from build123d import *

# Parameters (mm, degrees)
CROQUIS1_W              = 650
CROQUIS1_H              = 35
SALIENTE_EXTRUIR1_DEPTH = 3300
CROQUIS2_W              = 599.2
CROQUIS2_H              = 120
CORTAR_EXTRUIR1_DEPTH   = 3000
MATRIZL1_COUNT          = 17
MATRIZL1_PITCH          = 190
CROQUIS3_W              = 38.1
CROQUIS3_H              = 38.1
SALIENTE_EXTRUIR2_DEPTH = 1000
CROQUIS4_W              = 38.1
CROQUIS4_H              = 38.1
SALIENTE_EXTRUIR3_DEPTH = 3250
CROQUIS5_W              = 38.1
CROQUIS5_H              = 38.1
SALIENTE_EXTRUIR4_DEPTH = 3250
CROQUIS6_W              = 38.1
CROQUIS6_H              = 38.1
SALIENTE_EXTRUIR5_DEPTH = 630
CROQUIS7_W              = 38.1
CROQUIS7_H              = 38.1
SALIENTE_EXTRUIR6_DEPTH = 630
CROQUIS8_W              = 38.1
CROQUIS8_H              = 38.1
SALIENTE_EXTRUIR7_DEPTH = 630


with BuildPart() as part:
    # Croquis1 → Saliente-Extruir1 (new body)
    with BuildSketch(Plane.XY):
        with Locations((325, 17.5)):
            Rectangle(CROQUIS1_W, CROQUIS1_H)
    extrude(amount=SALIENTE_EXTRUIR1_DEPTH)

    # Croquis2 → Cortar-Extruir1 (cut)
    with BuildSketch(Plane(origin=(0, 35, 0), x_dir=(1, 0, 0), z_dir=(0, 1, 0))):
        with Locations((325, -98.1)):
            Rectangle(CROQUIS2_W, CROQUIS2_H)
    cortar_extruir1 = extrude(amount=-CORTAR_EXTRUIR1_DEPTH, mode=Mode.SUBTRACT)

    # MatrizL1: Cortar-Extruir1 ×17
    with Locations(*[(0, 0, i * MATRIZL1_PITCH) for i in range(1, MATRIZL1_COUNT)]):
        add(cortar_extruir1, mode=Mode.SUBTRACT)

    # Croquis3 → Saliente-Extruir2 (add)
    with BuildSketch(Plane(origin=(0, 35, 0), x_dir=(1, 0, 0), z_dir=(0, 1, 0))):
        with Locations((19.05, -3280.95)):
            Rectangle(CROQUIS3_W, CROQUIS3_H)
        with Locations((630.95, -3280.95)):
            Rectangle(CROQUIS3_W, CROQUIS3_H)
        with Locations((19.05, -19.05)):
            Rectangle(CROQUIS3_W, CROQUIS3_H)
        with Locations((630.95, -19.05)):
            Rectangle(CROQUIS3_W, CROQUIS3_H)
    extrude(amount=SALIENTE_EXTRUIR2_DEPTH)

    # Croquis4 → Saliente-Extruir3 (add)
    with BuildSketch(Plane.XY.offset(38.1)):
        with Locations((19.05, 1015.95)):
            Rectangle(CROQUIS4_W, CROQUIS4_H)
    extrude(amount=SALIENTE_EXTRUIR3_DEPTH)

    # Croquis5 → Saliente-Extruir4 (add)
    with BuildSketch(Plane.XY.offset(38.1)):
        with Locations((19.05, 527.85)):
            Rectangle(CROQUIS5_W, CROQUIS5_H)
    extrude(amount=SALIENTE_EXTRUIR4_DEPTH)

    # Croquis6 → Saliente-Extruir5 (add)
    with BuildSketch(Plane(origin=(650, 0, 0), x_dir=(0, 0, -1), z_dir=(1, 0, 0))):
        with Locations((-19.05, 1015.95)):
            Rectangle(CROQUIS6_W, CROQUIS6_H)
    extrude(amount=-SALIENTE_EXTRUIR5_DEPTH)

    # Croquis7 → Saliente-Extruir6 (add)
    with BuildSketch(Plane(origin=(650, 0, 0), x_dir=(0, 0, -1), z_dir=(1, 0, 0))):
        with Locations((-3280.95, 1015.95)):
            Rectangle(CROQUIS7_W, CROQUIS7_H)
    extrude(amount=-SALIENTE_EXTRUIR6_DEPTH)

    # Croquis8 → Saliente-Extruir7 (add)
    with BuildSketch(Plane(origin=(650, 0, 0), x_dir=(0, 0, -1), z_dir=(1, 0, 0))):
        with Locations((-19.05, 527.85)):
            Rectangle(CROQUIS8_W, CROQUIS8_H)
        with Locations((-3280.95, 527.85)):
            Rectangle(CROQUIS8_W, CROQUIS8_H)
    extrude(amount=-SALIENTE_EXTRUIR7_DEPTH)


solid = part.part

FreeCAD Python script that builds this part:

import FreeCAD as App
import Part
import Sketcher

V = App.Vector
Q = App.Units.Quantity


def add_polygon(sketch, points):
    """Adds a closed chain of lines whose ends are joined by coincident constraints."""
    first, n = sketch.GeometryCount, len(points)
    for a, b in zip(points, points[1:] + points[:1]):
        sketch.addGeometry(Part.LineSegment(App.Vector(*a, 0), App.Vector(*b, 0)), False)
    for i in range(n):
        sketch.addConstraint(Sketcher.Constraint("Coincident", first + i, 2, first + (i + 1) % n, 1))

doc = App.newDocument("Part")
body = doc.addObject("PartDesign::Body", "Body")

# Sketch on XY plane
sketch1 = body.newObject("Sketcher::SketchObject", "Sketch")
sketch1.AttachmentSupport = (doc.getObject("XY_Plane"), [""])
sketch1.MapMode = "FlatFace"
add_polygon(sketch1, [(0, 35), (0, 0), (650, 0), (650, 35)])  # lines 0-3
sketch1.addConstraint(Sketcher.Constraint("Vertical", 0))
sketch1.addConstraint(Sketcher.Constraint("Horizontal", 1))
sketch1.addConstraint(Sketcher.Constraint("Vertical", 2))
sketch1.addConstraint(Sketcher.Constraint("Horizontal", 3))
sketch1.addConstraint(Sketcher.Constraint("Coincident", 0, 2, -1, 1))
sketch1.addConstraint(Sketcher.Constraint("DistanceX", 1, 1, 1, 2, Q("650 mm")))
sketch1.addConstraint(Sketcher.Constraint("DistanceY", 0, 2, 0, 1, Q("35 mm")))
pad1 = body.newObject("PartDesign::Pad", "Pad")
pad1.Profile = sketch1
pad1.Length = 3300

# Sketch on XZ plane
sketch2 = body.newObject("Sketcher::SketchObject", "Sketch001")
sketch2.AttachmentSupport = (doc.getObject("XZ_Plane"), [""])
sketch2.MapMode = "FlatFace"
sketch2.AttachmentOffset = App.Placement(V(0, 0, -35), App.Rotation())
add_polygon(sketch2, [(25, 38), (25, 158), (625, 158), (625, 38)])  # lines 0-3
sketch2.addConstraint(Sketcher.Constraint("Vertical", 0))
sketch2.addConstraint(Sketcher.Constraint("Horizontal", 1))
sketch2.addConstraint(Sketcher.Constraint("Vertical", 2))
sketch2.addConstraint(Sketcher.Constraint("Horizontal", 3))
sketch2.addConstraint(Sketcher.Constraint("DistanceY", 0, 1, 0, 2, Q("120 mm")))
sketch2.addConstraint(Sketcher.Constraint("DistanceX", 1, 1, 1, 2, Q("599.2 mm")))
sketch2.addConstraint(Sketcher.Constraint("DistanceX", -1, 1, 0, 2, Q("25.4 mm")))
sketch2.addConstraint(Sketcher.Constraint("DistanceY", -1, 1, 0, 2, Q("158.1 mm")))
pocket1 = body.newObject("PartDesign::Pocket", "Pocket")
pocket1.Profile = sketch2
pocket1.Length = 3000
pocket1.Reversed = True
doc.recompute()

linearpattern = body.newObject("PartDesign::LinearPattern", "LinearPattern")
linearpattern.Originals = [pocket1]
linearpattern.Direction = (doc.getObject("Z_Axis"), [""])
linearpattern.Mode = "offset"
linearpattern.Offset = 190
linearpattern.Occurrences = 17
body.Tip = linearpattern

# Sketch on XZ plane
sketch3 = body.newObject("Sketcher::SketchObject", "Sketch002")
sketch3.AttachmentSupport = (doc.getObject("XZ_Plane"), [""])
sketch3.MapMode = "FlatFace"
sketch3.AttachmentOffset = App.Placement(V(0, 0, -35), App.Rotation())
add_polygon(sketch3, [(0, 3262), (0, 3300), (38, 3300), (38, 3262)])  # lines 0-3
add_polygon(sketch3, [(612, 3262), (612, 3300), (650, 3300), (650, 3262)])  # lines 4-7
add_polygon(sketch3, [(0, 0), (0, 38), (38, 38), (38, 0)])  # lines 8-11
add_polygon(sketch3, [(612, 0), (612, 38), (650, 38), (650, 0)])  # lines 12-15
sketch3.addConstraint(Sketcher.Constraint("Vertical", 0))
sketch3.addConstraint(Sketcher.Constraint("Horizontal", 1))
sketch3.addConstraint(Sketcher.Constraint("Vertical", 2))
sketch3.addConstraint(Sketcher.Constraint("Horizontal", 3))
sketch3.addConstraint(Sketcher.Constraint("Vertical", 4))
sketch3.addConstraint(Sketcher.Constraint("Horizontal", 5))
sketch3.addConstraint(Sketcher.Constraint("Vertical", 6))
sketch3.addConstraint(Sketcher.Constraint("Horizontal", 7))
sketch3.addConstraint(Sketcher.Constraint("Vertical", 8))
sketch3.addConstraint(Sketcher.Constraint("Horizontal", 9))
sketch3.addConstraint(Sketcher.Constraint("Vertical", 10))
sketch3.addConstraint(Sketcher.Constraint("Horizontal", 11))
sketch3.addConstraint(Sketcher.Constraint("Vertical", 12))
sketch3.addConstraint(Sketcher.Constraint("Horizontal", 13))
sketch3.addConstraint(Sketcher.Constraint("Vertical", 14))
sketch3.addConstraint(Sketcher.Constraint("Horizontal", 15))
sketch3.addConstraint(Sketcher.Constraint("Coincident", 11, 2, -1, 1))
sketch3.addConstraint(Sketcher.Constraint("PointOnObject", 0, 2, -2))
sketch3.addConstraint(Sketcher.Constraint("PointOnObject", 14, 2, -1))
sketch3.addConstraint(Sketcher.Constraint("Horizontal", 1, 2, 4, 2))
sketch3.addConstraint(Sketcher.Constraint("Horizontal", 3, 2, 6, 2))
sketch3.addConstraint(Sketcher.Constraint("Horizontal", 9, 2, 12, 2))
sketch3.addConstraint(Sketcher.Constraint("Vertical", 2, 2, 9, 2))
sketch3.addConstraint(Sketcher.Constraint("Vertical", 7, 2, 12, 2))
sketch3.addConstraint(Sketcher.Constraint("Vertical", 6, 2, 13, 2))
sketch3.addConstraint(Sketcher.Constraint("Equal", 3, 5))
sketch3.addConstraint(Sketcher.Constraint("Equal", 15, 0))
sketch3.addConstraint(Sketcher.Constraint("Equal", 6, 8))
sketch3.addConstraint(Sketcher.Constraint("DistanceX", 1, 1, 1, 2, Q("38.1 mm")))
sketch3.addConstraint(Sketcher.Constraint("DistanceY", -1, 1, 0, 2, Q("3300 mm")))
sketch3.addConstraint(Sketcher.Constraint("DistanceX", -1, 1, 5, 2, Q("650 mm")))
pad2 = body.newObject("PartDesign::Pad", "Pad001")
pad2.Profile = sketch3
pad2.Length = 1000
pad2.Reversed = True

# Sketch on XY plane
sketch4 = body.newObject("Sketcher::SketchObject", "Sketch003")
sketch4.AttachmentSupport = (doc.getObject("XY_Plane"), [""])
sketch4.MapMode = "FlatFace"
sketch4.AttachmentOffset = App.Placement(V(0, 0, 38.1), App.Rotation())
add_polygon(sketch4, [(0, 1035), (0, 997), (38, 997), (38, 1035)])  # lines 0-3
sketch4.addConstraint(Sketcher.Constraint("Vertical", 0))
sketch4.addConstraint(Sketcher.Constraint("Horizontal", 1))
sketch4.addConstraint(Sketcher.Constraint("Vertical", 2))
sketch4.addConstraint(Sketcher.Constraint("Horizontal", 3))
sketch4.addConstraint(Sketcher.Constraint("PointOnObject", 0, 2, -2))
sketch4.addConstraint(Sketcher.Constraint("Equal", 3, 0))
sketch4.addConstraint(Sketcher.Constraint("DistanceX", 1, 1, 1, 2, Q("38.1 mm")))
sketch4.addConstraint(Sketcher.Constraint("DistanceY", -1, 1, 2, 2, Q("1035 mm")))
pad3 = body.newObject("PartDesign::Pad", "Pad002")
pad3.Profile = sketch4
pad3.Length = 3250

# Sketch on XY plane
sketch5 = body.newObject("Sketcher::SketchObject", "Sketch004")
sketch5.AttachmentSupport = (doc.getObject("XY_Plane"), [""])
sketch5.MapMode = "FlatFace"
sketch5.AttachmentOffset = App.Placement(V(0, 0, 38.1), App.Rotation())
add_polygon(sketch5, [(0, 547), (0, 509), (38, 509), (38, 547)])  # lines 0-3
sketch5.addConstraint(Sketcher.Constraint("Vertical", 0))
sketch5.addConstraint(Sketcher.Constraint("Horizontal", 1))
sketch5.addConstraint(Sketcher.Constraint("Vertical", 2))
sketch5.addConstraint(Sketcher.Constraint("Horizontal", 3))
sketch5.addConstraint(Sketcher.Constraint("PointOnObject", 0, 2, -2))
sketch5.addConstraint(Sketcher.Constraint("Equal", 3, 0))
sketch5.addConstraint(Sketcher.Constraint("DistanceX", 1, 1, 1, 2, Q("38.1 mm")))
sketch5.addConstraint(Sketcher.Constraint("DistanceY", -1, 1, 0, 2, Q("508.8 mm")))
pad4 = body.newObject("PartDesign::Pad", "Pad003")
pad4.Profile = sketch5
pad4.Length = 3250

# Sketch on YZ plane
sketch6 = body.newObject("Sketcher::SketchObject", "Sketch005")
sketch6.AttachmentSupport = (doc.getObject("YZ_Plane"), [""])
sketch6.MapMode = "FlatFace"
sketch6.AttachmentOffset = App.Placement(V(0, 0, 650), App.Rotation())
add_polygon(sketch6, [(1035, 38), (997, 38), (997, 0), (1035, 0)])  # lines 0-3
sketch6.addConstraint(Sketcher.Constraint("Horizontal", 0))
sketch6.addConstraint(Sketcher.Constraint("Vertical", 1))
sketch6.addConstraint(Sketcher.Constraint("Horizontal", 2))
sketch6.addConstraint(Sketcher.Constraint("Vertical", 3))
sketch6.addConstraint(Sketcher.Constraint("PointOnObject", 1, 2, -1))
sketch6.addConstraint(Sketcher.Constraint("Equal", 2, 1))
sketch6.addConstraint(Sketcher.Constraint("DistanceX", 0, 2, 0, 1, Q("38.1 mm")))
sketch6.addConstraint(Sketcher.Constraint("DistanceX", -1, 1, 2, 2, Q("1035 mm")))
pad5 = body.newObject("PartDesign::Pad", "Pad004")
pad5.Profile = sketch6
pad5.Length = 630
pad5.Reversed = True

# Sketch on YZ plane
sketch7 = body.newObject("Sketcher::SketchObject", "Sketch006")
sketch7.AttachmentSupport = (doc.getObject("YZ_Plane"), [""])
sketch7.MapMode = "FlatFace"
sketch7.AttachmentOffset = App.Placement(V(0, 0, 650), App.Rotation())
add_polygon(sketch7, [(1035, 3300), (997, 3300), (997, 3262), (1035, 3262)])  # lines 0-3
sketch7.addConstraint(Sketcher.Constraint("Horizontal", 0))
sketch7.addConstraint(Sketcher.Constraint("Vertical", 1))
sketch7.addConstraint(Sketcher.Constraint("Horizontal", 2))
sketch7.addConstraint(Sketcher.Constraint("Vertical", 3))
sketch7.addConstraint(Sketcher.Constraint("Equal", 2, 1))
sketch7.addConstraint(Sketcher.Constraint("DistanceX", 0, 2, 0, 1, Q("38.1 mm")))
sketch7.addConstraint(Sketcher.Constraint("DistanceY", -1, 1, 0, 2, Q("3300 mm")))
sketch7.addConstraint(Sketcher.Constraint("DistanceX", -1, 1, 2, 2, Q("1035 mm")))
pad6 = body.newObject("PartDesign::Pad", "Pad005")
pad6.Profile = sketch7
pad6.Length = 630
pad6.Reversed = True

# Sketch on YZ plane
sketch8 = body.newObject("Sketcher::SketchObject", "Sketch007")
sketch8.AttachmentSupport = (doc.getObject("YZ_Plane"), [""])
sketch8.MapMode = "FlatFace"
sketch8.AttachmentOffset = App.Placement(V(0, 0, 650), App.Rotation())
add_polygon(sketch8, [(547, 38), (509, 38), (509, 0), (547, 0)])  # lines 0-3
add_polygon(sketch8, [(547, 3300), (509, 3300), (509, 3262), (547, 3262)])  # lines 4-7
sketch8.addConstraint(Sketcher.Constraint("Horizontal", 0))
sketch8.addConstraint(Sketcher.Constraint("Vertical", 1))
sketch8.addConstraint(Sketcher.Constraint("Horizontal", 2))
sketch8.addConstraint(Sketcher.Constraint("Vertical", 3))
sketch8.addConstraint(Sketcher.Constraint("Horizontal", 4))
sketch8.addConstraint(Sketcher.Constraint("Vertical", 5))
sketch8.addConstraint(Sketcher.Constraint("Horizontal", 6))
sketch8.addConstraint(Sketcher.Constraint("Vertical", 7))
sketch8.addConstraint(Sketcher.Constraint("PointOnObject", 1, 2, -1))
sketch8.addConstraint(Sketcher.Constraint("Vertical", 1, 2, 4, 2))
sketch8.addConstraint(Sketcher.Constraint("Vertical", 3, 2, 6, 2))
sketch8.addConstraint(Sketcher.Constraint("Equal", 6, 1))
sketch8.addConstraint(Sketcher.Constraint("Equal", 3, 5))
sketch8.addConstraint(Sketcher.Constraint("DistanceX", 0, 2, 0, 1, Q("38.1 mm")))
sketch8.addConstraint(Sketcher.Constraint("DistanceY", -1, 1, 4, 2, Q("3300 mm")))
sketch8.addConstraint(Sketcher.Constraint("DistanceX", -1, 1, 0, 2, Q("508.8 mm")))
pad7 = body.newObject("PartDesign::Pad", "Pad006")
pad7.Profile = sketch8
pad7.Length = 630
pad7.Reversed = True

doc.recompute()
